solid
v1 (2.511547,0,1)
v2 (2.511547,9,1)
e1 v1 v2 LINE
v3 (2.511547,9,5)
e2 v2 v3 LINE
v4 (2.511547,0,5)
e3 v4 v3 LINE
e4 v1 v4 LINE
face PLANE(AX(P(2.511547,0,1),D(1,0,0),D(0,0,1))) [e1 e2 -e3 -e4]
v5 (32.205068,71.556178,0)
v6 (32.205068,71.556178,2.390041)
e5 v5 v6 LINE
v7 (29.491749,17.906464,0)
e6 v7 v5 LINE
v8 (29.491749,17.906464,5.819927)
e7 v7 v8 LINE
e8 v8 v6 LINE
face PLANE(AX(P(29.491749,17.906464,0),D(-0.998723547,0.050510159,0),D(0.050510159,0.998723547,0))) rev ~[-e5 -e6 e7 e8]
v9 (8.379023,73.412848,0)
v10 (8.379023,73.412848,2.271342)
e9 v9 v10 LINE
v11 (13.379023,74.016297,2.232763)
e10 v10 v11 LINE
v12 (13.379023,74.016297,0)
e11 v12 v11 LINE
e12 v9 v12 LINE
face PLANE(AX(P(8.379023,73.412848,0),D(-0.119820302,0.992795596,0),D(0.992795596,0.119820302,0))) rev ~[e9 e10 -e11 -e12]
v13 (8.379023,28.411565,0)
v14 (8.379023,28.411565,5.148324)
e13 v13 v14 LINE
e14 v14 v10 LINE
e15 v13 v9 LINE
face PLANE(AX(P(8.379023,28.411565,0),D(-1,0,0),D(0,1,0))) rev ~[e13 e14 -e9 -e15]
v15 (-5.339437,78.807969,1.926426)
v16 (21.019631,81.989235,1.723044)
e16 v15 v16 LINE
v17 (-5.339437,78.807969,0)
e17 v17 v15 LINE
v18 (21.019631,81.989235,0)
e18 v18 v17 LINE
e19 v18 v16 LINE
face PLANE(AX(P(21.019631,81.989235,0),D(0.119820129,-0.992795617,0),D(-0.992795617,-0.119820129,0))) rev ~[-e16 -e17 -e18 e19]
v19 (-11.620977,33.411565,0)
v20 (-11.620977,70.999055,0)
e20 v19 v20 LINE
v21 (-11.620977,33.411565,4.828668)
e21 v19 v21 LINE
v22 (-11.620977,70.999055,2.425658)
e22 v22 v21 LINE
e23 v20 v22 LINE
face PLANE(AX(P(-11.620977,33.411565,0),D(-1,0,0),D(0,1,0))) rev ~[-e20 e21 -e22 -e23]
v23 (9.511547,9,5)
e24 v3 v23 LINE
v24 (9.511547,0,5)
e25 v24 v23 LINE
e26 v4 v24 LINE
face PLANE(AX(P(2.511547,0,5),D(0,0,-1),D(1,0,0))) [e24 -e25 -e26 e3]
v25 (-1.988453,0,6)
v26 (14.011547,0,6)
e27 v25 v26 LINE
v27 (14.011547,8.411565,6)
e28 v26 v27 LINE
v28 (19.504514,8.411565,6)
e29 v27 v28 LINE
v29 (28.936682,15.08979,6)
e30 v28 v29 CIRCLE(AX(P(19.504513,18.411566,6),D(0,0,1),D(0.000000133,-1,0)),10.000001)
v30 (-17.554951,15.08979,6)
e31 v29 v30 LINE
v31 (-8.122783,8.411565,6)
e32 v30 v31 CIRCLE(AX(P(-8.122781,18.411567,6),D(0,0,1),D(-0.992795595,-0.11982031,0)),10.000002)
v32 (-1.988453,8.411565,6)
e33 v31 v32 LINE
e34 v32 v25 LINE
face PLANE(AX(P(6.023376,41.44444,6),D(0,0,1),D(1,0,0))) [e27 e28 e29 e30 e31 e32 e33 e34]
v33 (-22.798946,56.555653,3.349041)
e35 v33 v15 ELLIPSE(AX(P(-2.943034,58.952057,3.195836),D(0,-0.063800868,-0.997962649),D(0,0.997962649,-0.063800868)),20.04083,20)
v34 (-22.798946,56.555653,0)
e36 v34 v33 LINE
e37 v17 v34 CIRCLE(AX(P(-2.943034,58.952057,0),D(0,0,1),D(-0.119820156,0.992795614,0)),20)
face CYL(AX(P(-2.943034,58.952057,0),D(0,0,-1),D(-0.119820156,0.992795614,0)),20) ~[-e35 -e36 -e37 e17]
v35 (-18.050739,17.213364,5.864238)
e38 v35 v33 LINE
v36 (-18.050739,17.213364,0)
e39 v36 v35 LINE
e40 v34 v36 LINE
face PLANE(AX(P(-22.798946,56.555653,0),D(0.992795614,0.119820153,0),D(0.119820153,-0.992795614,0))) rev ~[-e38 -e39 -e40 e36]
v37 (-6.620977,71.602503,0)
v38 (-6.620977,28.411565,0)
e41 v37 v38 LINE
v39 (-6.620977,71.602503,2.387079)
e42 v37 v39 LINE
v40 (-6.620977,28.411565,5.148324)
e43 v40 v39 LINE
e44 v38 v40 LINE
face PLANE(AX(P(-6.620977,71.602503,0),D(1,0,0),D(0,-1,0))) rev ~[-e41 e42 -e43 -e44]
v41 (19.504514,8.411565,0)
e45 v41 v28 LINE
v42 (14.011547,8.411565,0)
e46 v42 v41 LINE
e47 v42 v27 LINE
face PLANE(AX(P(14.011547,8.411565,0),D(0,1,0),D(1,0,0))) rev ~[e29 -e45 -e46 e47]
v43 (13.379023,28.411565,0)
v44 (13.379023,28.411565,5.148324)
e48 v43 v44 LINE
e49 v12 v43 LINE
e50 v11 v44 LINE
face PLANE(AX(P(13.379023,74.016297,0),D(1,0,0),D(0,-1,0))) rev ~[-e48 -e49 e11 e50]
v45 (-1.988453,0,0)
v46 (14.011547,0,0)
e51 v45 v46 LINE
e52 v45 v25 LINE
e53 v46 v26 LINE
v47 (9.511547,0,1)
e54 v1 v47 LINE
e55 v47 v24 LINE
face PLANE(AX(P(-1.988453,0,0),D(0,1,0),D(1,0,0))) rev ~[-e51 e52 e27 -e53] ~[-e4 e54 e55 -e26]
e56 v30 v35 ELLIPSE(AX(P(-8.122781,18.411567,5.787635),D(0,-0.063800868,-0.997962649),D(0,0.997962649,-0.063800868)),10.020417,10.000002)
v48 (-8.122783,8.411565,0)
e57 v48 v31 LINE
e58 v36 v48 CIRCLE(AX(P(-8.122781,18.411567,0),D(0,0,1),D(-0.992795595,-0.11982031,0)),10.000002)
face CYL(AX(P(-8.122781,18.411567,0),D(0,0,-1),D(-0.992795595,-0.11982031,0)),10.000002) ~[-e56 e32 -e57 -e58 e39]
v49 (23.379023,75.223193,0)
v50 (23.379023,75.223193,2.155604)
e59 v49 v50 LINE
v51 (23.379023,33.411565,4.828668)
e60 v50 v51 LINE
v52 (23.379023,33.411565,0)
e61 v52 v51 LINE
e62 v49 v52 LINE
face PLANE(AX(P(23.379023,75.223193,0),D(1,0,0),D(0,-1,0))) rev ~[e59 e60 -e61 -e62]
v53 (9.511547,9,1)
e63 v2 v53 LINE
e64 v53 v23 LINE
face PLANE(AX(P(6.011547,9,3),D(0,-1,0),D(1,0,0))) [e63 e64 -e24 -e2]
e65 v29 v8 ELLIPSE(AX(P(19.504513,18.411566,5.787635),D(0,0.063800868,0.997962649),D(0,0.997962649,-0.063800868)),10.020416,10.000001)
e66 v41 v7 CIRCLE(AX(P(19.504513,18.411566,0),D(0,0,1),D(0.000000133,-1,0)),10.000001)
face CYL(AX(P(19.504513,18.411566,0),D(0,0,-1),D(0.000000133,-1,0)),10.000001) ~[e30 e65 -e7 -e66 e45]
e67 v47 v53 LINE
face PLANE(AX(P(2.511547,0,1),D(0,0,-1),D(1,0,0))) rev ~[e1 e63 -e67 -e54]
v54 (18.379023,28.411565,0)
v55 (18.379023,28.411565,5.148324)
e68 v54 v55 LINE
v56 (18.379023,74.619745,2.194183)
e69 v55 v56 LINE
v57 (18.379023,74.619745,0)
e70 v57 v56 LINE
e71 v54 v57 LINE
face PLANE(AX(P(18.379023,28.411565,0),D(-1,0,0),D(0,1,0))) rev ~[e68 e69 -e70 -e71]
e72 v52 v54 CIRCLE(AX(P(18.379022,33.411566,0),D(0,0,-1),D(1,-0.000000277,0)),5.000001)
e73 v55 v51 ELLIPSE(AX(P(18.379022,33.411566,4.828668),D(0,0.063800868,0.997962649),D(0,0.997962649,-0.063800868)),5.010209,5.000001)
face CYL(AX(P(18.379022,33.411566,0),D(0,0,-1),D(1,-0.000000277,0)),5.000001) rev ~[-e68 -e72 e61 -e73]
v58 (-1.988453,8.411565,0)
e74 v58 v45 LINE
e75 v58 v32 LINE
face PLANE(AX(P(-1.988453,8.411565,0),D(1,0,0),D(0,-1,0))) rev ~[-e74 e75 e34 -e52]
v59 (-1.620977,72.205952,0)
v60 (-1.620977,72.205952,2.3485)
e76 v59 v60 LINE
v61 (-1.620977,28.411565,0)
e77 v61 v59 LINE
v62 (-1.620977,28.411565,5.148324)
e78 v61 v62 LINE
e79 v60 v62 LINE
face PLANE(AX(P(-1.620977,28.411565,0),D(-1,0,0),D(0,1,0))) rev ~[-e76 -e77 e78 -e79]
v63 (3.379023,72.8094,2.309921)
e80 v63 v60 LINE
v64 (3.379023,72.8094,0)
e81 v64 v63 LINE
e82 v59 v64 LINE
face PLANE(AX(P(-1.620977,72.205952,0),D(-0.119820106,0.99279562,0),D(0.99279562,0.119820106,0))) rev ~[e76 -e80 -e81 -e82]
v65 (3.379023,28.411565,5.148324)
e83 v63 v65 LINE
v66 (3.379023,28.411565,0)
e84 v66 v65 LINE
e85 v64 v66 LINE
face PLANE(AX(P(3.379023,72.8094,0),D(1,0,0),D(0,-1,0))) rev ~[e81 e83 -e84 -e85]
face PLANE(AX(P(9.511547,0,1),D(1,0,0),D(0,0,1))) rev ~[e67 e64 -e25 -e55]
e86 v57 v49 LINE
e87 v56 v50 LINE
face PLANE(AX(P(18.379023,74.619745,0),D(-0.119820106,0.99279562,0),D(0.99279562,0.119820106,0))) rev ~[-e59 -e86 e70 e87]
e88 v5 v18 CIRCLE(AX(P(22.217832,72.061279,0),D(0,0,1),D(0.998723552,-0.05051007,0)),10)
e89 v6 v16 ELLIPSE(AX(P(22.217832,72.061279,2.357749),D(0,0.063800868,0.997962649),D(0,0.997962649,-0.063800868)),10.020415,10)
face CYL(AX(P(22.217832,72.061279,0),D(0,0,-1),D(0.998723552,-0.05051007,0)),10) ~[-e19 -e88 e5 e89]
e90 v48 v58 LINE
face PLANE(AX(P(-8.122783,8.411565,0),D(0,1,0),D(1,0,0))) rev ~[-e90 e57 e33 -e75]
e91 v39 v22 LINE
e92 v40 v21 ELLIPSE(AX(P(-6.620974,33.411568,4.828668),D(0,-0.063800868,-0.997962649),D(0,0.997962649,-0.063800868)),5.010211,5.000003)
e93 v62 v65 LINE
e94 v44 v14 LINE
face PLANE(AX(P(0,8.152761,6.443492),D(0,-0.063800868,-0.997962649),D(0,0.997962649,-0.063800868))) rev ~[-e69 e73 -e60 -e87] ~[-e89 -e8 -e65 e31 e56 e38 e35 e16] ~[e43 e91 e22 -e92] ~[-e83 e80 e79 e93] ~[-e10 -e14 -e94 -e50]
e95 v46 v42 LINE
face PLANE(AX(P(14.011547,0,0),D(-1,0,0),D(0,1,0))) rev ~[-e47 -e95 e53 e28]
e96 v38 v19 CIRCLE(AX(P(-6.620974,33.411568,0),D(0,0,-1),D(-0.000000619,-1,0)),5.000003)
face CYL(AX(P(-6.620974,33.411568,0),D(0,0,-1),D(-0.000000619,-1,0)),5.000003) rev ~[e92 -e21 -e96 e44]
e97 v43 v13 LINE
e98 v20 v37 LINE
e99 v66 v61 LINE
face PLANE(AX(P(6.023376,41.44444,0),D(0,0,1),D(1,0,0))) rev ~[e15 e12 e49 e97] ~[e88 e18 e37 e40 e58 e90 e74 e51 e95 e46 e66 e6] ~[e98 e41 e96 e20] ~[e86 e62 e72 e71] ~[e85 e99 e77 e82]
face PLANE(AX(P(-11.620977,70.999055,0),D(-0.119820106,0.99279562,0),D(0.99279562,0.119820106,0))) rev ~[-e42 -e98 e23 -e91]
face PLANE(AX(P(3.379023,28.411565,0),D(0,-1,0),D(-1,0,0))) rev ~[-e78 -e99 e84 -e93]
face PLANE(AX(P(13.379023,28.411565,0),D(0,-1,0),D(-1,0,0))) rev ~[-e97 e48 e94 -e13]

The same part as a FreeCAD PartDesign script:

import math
import FreeCAD as App
import Part
import Sketcher
from FreeCAD import Vector
Q = App.Units.Quantity

doc = App.newDocument("Part")
body = doc.addObject("PartDesign::Body", "Body")

# Sketch on XY plane
sketch1 = doc.addObject("Sketcher::SketchObject", "Sketch")
body.addObject(sketch1)
sketch1.AttachmentSupport = (doc.XY_Plane, [""])
sketch1.MapMode = "FlatFace"
sketch1.addGeometry([
    Part.LineSegment(Vector(-2, 8, 0), Vector(-2, 0, 0)),  # 0
    Part.LineSegment(Vector(-2, 0, 0), Vector(14, 0, 0)),  # 1
    Part.LineSegment(Vector(14, 0, 0), Vector(14, 8, 0)),  # 2
    Part.LineSegment(Vector(14, 8, 0), Vector(20, 8, 0)),  # 3
    Part.ArcOfCircle(Part.Circle(Vector(20, 18, 0), Vector(0, 0, 1), 10), math.radians(-90), math.radians(-3)),  # 4
    Part.LineSegment(Vector(29, 18, 0), Vector(32, 72, 0)),  # 5
    Part.ArcOfCircle(Part.Circle(Vector(22, 72, 0), Vector(0, 0, 1), 10), math.radians(-3), math.radians(97)),  # 6
    Part.LineSegment(Vector(21, 82, 0), Vector(-5, 79, 0)),  # 7
    Part.ArcOfCircle(Part.Circle(Vector(-3, 59, 0), Vector(0, 0, 1), 20), math.radians(97), math.radians(187)),  # 8
    Part.LineSegment(Vector(-23, 57, 0), Vector(-18, 17, 0)),  # 9
    Part.ArcOfCircle(Part.Circle(Vector(-8, 18, 0), Vector(0, 0, 1), 10), math.radians(-173), math.radians(-90)),  # 10
    Part.LineSegment(Vector(-8, 8, 0), Vector(-2, 8, 0)),  # 11
    Part.ArcOfCircle(Part.Circle(Vector(-7, 33, 0), Vector(0, 0, 1), 5), math.radians(-180), math.radians(-90)),  # 12
    Part.LineSegment(Vector(-12, 33, 0), Vector(-12, 71, 0)),  # 13
    Part.LineSegment(Vector(-12, 71, 0), Vector(-7, 72, 0)),  # 14
    Part.LineSegment(Vector(-7, 72, 0), Vector(-7, 28, 0)),  # 15
    Part.LineSegment(Vector(3, 28, 0), Vector(-2, 28, 0)),  # 16
    Part.LineSegment(Vector(-2, 28, 0), Vector(-2, 72, 0)),  # 17
    Part.LineSegment(Vector(-2, 72, 0), Vector(3, 73, 0)),  # 18
    Part.LineSegment(Vector(3, 73, 0), Vector(3, 28, 0)),  # 19
    Part.LineSegment(Vector(8, 28, 0), Vector(8, 73, 0)),  # 20
    Part.LineSegment(Vector(8, 73, 0), Vector(13, 74, 0)),  # 21
    Part.LineSegment(Vector(13, 74, 0), Vector(13, 28, 0)),  # 22
    Part.LineSegment(Vector(13, 28, 0), Vector(8, 28, 0)),  # 23
    Part.LineSegment(Vector(18, 75, 0), Vector(23, 75, 0)),  # 24
    Part.LineSegment(Vector(23, 75, 0), Vector(23, 33, 0)),  # 25
    Part.ArcOfCircle(Part.Circle(Vector(18, 33, 0), Vector(0, 0, 1), 5), math.radians(-90), math.radians(0)),  # 26
    Part.LineSegment(Vector(18, 28, 0), Vector(18, 75, 0)),  # 27
], False)
sketch1.addConstraint([
    Sketcher.Constraint("Coincident", 0, 2, 1, 1),
    Sketcher.Constraint("Coincident", 1, 2, 2, 1),
    Sketcher.Constraint("Coincident", 2, 2, 3, 1),
    Sketcher.Constraint("Tangent", 3, 2, 4, 1),
    Sketcher.Constraint("Tangent", 4, 2, 5, 1),
    Sketcher.Constraint("Tangent", 5, 2, 6, 1),
    Sketcher.Constraint("Tangent", 6, 2, 7, 1),
    Sketcher.Constraint("Tangent", 7, 2, 8, 1),
    Sketcher.Constraint("Tangent", 8, 2, 9, 1),
    Sketcher.Constraint("Tangent", 9, 2, 10, 1),
    Sketcher.Constraint("Tangent", 10, 2, 11, 1),
    Sketcher.Constraint("Coincident", 11, 2, 0, 1),
    Sketcher.Constraint("Tangent", 12, 1, 13, 1),
    Sketcher.Constraint("Coincident", 13, 2, 14, 1),
    Sketcher.Constraint("Coincident", 14, 2, 15, 1),
    Sketcher.Constraint("Coincident", 15, 2, 12, 2),
    Sketcher.Constraint("Coincident", 16, 2, 17, 1),
    Sketcher.Constraint("Coincident", 17, 2, 18, 1),
    Sketcher.Constraint("Coincident", 18, 2, 19, 1),
    Sketcher.Constraint("Coincident", 19, 2, 16, 1),
    Sketcher.Constraint("Coincident", 20, 2, 21, 1),
    Sketcher.Constraint("Coincident", 21, 2, 22, 1),
    Sketcher.Constraint("Coincident", 22, 2, 23, 1),
    Sketcher.Constraint("Coincident", 23, 2, 20, 1),
    Sketcher.Constraint("Coincident", 24, 2, 25, 1),
    Sketcher.Constraint("Tangent", 25, 2, 26, 2),
    Sketcher.Constraint("Coincident", 26, 1, 27, 1),
    Sketcher.Constraint("Coincident", 27, 2, 24, 1),
    Sketcher.Constraint("Vertical", 0),
    Sketcher.Constraint("Horizontal", 1),
    Sketcher.Constraint("Vertical", 2),
    Sketcher.Constraint("Horizontal", 3),
    Sketcher.Constraint("Horizontal", 11),
    Sketcher.Constraint("Vertical", 13),
    Sketcher.Constraint("Vertical", 15),
    Sketcher.Constraint("Horizontal", 16),
    Sketcher.Constraint("Vertical", 17),
    Sketcher.Constraint("Vertical", 19),
    Sketcher.Constraint("Vertical", 20),
    Sketcher.Constraint("Vertical", 22),
    Sketcher.Constraint("Horizontal", 23),
    Sketcher.Constraint("Vertical", 25),
    Sketcher.Constraint("Vertical", 27),
    Sketcher.Constraint("Equal", 4, 6),
    Sketcher.Constraint("Equal", 4, 10),
    Sketcher.Constraint("Equal", 12, 26),
    Sketcher.Constraint("PointOnObject", 0, 2, -1),
    Sketcher.Constraint("Perpendicular", 7, 9),
    Sketcher.Constraint("Perpendicular", 9, 14),
    Sketcher.Constraint("Parallel", 14, 18),
    Sketcher.Constraint("Parallel", 18, 21),
    Sketcher.Constraint("Parallel", 21, 24),
    Sketcher.Constraint("Horizontal", 4, 3, 10, 3),
    Sketcher.Constraint("Horizontal", 12, 3, 26, 3),
    Sketcher.Constraint("Horizontal", 15, 2, 16, 2),
    Sketcher.Constraint("Horizontal", 19, 2, 22, 2),
    Sketcher.Constraint("Equal", 16, 23),
    Sketcher.Constraint("Equal", 14, 18),
    Sketcher.Constraint("Equal", 21, 24),
    Sketcher.Constraint("Radius", 4, Q("10.000001 mm")),
    Sketcher.Constraint("Radius", 8, Q("20 mm")),
    Sketcher.Constraint("Radius", 26, Q("5.000001 mm")),
    Sketcher.Constraint("DistanceX", 1, 1, 1, 2, Q("16 mm")),
    Sketcher.Constraint("DistanceX", 16, 2, 16, 1, Q("5 mm")),
    Sketcher.Constraint("DistanceY", 10, 3, 12, 3, Q("15.000001 mm")),
    Sketcher.Constraint("DistanceX", 15, 2, 16, 2, Q("5 mm")),
    Sketcher.Constraint("DistanceX", 19, 2, 26, 3, Q("14.999999 mm")),
    Sketcher.Constraint("DistanceX", 18, 2, 20, 2, Q("5 mm")),
    Sketcher.Constraint("DistanceY", 8, 3, 13, 2, Q("12.046998 mm")),
    Sketcher.Constraint("DistanceX", 11, 1, 11, 2, Q("6.13433 mm")),
    Sketcher.Constraint("DistanceY", 13, 1, 13, 2, Q("37.58749 mm")),
    Sketcher.Constraint("DistanceY", 15, 2, 15, 1, Q("43.190938 mm")),
    Sketcher.Constraint("DistanceY", 22, 2, 22, 1, Q("45.604732 mm")),
    Sketcher.Constraint("DistanceY", 27, 1, 27, 2, Q("46.20818 mm")),
    Sketcher.Constraint("DistanceY", -1, 1, 18, 2, Q("72.8094 mm")),
    Sketcher.Constraint("DistanceY", 4, 2, 4, 3, Q("0.505102 mm")),
    Sketcher.Constraint("DistanceX", 2, 2, 4, 2, Q("15.480202 mm")),
    Sketcher.Constraint("DistanceY", 0, 2, 0, 1, Q("8.411565 mm")),
    Sketcher.Constraint("DistanceX", 10, 3, -1, 1, Q("8.122781 mm")),
    Sketcher.Constraint("DistanceX", -1, 1, 26, 3, Q("18.379022 mm")),
])
pad1 = doc.addObject("PartDesign::Pad", "Pad")
body.addObject(pad1)
pad1.Profile = sketch1
pad1.Length = 6

# Sketch on YZ plane
sketch2 = doc.addObject("Sketcher::SketchObject", "Sketch001")
body.addObject(sketch2)
sketch2.AttachmentSupport = (doc.YZ_Plane, [""])
sketch2.MapMode = "FlatFace"
sketch2.addGeometry([
    Part.LineSegment(Vector(83, 7, 0), Vector(8, 6, 0)),
    Part.LineSegment(Vector(8, 6, 0), Vector(83, 2, 0)),
    Part.LineSegment(Vector(83, 2, 0), Vector(83, 7, 0)),
], False)
sketch2.addConstraint([
    Sketcher.Constraint("Coincident", 0, 2, 1, 1),
    Sketcher.Constraint("Coincident", 1, 2, 2, 1),
    Sketcher.Constraint("Coincident", 2, 2, 0, 1),
    Sketcher.Constraint("Vertical", 2),
    Sketcher.Constraint("DistanceY", 2, 1, 2, 2, Q("5.409752 mm")),
    Sketcher.Constraint("Distance", 1, Q("74.888558 mm")),
    Sketcher.Constraint("DistanceX", -1, 1, 0, 2, Q("8.152761 mm")),
    Sketcher.Constraint("DistanceY", -1, 1, 2, 2, Q("7.075289 mm")),
    Sketcher.Constraint("Distance", 0, Q("74.738654 mm")),
])
pocket1 = doc.addObject("PartDesign::Pocket", "Pocket")
body.addObject(pocket1)
pocket1.Profile = sketch2
pocket1.Type = "ThroughAll"
pocket1.Midplane = True

# Sketch on XZ plane
sketch3 = doc.addObject("Sketcher::SketchObject", "Sketch002")
body.addObject(sketch3)
sketch3.AttachmentSupport = (doc.XZ_Plane, [""])
sketch3.MapMode = "FlatFace"
sketch3.addGeometry([
    Part.LineSegment(Vector(2.5, 5, 0), Vector(2.5, 1, 0)),
    Part.LineSegment(Vector(2.5, 1, 0), Vector(9.5, 1, 0)),
    Part.LineSegment(Vector(9.5, 1, 0), Vector(9.5, 5, 0)),
    Part.LineSegment(Vector(9.5, 5, 0), Vector(2.5, 5, 0)),
], False)
sketch3.addConstraint([
    Sketcher.Constraint("Coincident", 0, 2, 1, 1),
    Sketcher.Constraint("Coincident", 1, 2, 2, 1),
    Sketcher.Constraint("Coincident", 2, 2, 3, 1),
    Sketcher.Constraint("Coincident", 3, 2, 0, 1),
    Sketcher.Constraint("Vertical", 0),
    Sketcher.Constraint("Horizontal", 1),
    Sketcher.Constraint("Vertical", 2),
    Sketcher.Constraint("Horizontal", 3),
    Sketcher.Constraint("DistanceX", 1, 1, 1, 2, Q("7 mm")),
    Sketcher.Constraint("DistanceY", 0, 2, 0, 1, Q("4 mm")),
    Sketcher.Constraint("DistanceY", -1, 1, 0, 2, Q("1 mm")),
    Sketcher.Constraint("DistanceX", -1, 1, 0, 2, Q("2.511547 mm")),
])
pocket2 = doc.addObject("PartDesign::Pocket", "Pocket001")
body.addObject(pocket2)
pocket2.Profile = sketch3
pocket2.Length = 9

doc.recompute()
